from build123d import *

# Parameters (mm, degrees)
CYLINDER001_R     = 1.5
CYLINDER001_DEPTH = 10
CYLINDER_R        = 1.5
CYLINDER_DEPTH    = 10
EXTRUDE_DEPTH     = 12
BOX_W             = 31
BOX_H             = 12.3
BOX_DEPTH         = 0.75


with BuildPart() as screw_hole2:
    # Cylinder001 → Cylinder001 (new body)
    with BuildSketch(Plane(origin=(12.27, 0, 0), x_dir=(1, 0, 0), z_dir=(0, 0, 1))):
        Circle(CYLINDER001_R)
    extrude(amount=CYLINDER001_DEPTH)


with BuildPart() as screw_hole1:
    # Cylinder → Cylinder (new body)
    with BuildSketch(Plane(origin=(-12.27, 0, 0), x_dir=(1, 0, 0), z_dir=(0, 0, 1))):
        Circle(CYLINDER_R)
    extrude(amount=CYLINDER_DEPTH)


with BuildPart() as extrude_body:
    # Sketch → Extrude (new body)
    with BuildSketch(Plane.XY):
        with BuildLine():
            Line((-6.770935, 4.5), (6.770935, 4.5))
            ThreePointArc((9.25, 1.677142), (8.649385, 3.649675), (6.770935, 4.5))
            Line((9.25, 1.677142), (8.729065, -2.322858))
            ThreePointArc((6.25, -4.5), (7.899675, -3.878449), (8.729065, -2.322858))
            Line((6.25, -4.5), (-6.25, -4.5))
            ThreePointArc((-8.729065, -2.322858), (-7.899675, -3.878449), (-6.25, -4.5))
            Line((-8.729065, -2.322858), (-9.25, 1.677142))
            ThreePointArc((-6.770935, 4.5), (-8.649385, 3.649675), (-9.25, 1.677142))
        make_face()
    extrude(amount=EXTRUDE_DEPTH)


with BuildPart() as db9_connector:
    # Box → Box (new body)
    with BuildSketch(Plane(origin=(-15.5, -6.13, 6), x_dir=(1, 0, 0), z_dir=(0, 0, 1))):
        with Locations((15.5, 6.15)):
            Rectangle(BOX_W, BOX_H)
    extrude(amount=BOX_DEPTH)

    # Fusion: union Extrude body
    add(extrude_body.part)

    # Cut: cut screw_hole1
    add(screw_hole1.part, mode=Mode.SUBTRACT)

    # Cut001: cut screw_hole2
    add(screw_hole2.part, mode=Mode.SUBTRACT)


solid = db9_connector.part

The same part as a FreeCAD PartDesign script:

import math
import FreeCAD as App
import Part
import Sketcher

V = App.Vector

doc = App.newDocument("Part")
body = doc.addObject("PartDesign::Body", "Body")

sketch1 = doc.addObject("Sketcher::SketchObject", "Sketch")
body.addObject(sketch1)
sketch1.AttachmentSupport = (doc.XY_Plane, [""])
sketch1.MapMode = "FlatFace"
sketch1.addGeometry(Part.Circle(V(12.27, 0, 0), V(0, 0, 1), 1.5), False)
sketch1.addConstraint([
    Sketcher.Constraint("PointOnObject", 0, 3, -1),
    Sketcher.Constraint("Diameter", 0, 3.0),
    Sketcher.Constraint("DistanceX", -1, 1, 0, 3, 12.27),
])
pad1 = doc.addObject("PartDesign::Pad", "Pad")
body.addObject(pad1)
pad1.Profile = sketch1
pad1.Length = 10
body2 = doc.addObject("PartDesign::Body", "Body001")

sketch2 = doc.addObject("Sketcher::SketchObject", "Sketch001")
body2.addObject(sketch2)
sketch2.AttachmentSupport = (doc.getObject("XY_Plane001"), [""])
sketch2.MapMode = "FlatFace"
sketch2.addGeometry(Part.Circle(V(-12.27, 0, 0), V(0, 0, 1), 1.5), False)
sketch2.addConstraint([
    Sketcher.Constraint("PointOnObject", 0, 3, -1),
    Sketcher.Constraint("Diameter", 0, 3.0),
    Sketcher.Constraint("DistanceX", 0, 3, -1, 1, 12.27),
])
pad2 = doc.addObject("PartDesign::Pad", "Pad001")
body2.addObject(pad2)
pad2.Profile = sketch2
pad2.Length = 10
body3 = doc.addObject("PartDesign::Body", "Body002")

sketch3 = doc.addObject("Sketcher::SketchObject", "Sketch002")
body3.addObject(sketch3)
sketch3.AttachmentSupport = (doc.getObject("XY_Plane002"), [""])
sketch3.MapMode = "FlatFace"
sketch3.addGeometry([
    Part.LineSegment(V(6.770935, 4.5, 0), V(-6.770935, 4.5, 0)),
    Part.ArcOfCircle(Part.Circle(V(-6.770936, 2.000001, 0), V(0, 0, 1), 2.499999), math.radians(89.999981), math.radians(187.4201)),
    Part.LineSegment(V(-9.25, 1.677142, 0), V(-8.729065, -2.322858, 0)),
    Part.ArcOfCircle(Part.Circle(V(-6.249999, -1.999999, 0), V(0, 0, 1), 2.500001), math.radians(-172.57989), math.radians(-90.000023)),
    Part.LineSegment(V(-6.25, -4.5, 0), V(6.25, -4.5, 0)),
    Part.ArcOfCircle(Part.Circle(V(6.249999, -1.999999, 0), V(0, 0, 1), 2.500001), math.radians(-89.999977), math.radians(-7.42011)),
    Part.LineSegment(V(8.729065, -2.322858, 0), V(9.25, 1.677142, 0)),
    Part.ArcOfCircle(Part.Circle(V(6.770936, 2.000001, 0), V(0, 0, 1), 2.499999), math.radians(-7.4201), math.radians(90.000019)),
], False)
sketch3.addConstraint([
    Sketcher.Constraint("Tangent", 0, 2, 1, 1),
    Sketcher.Constraint("Tangent", 1, 2, 2, 1),
    Sketcher.Constraint("Tangent", 2, 2, 3, 1),
    Sketcher.Constraint("Tangent", 3, 2, 4, 1),
    Sketcher.Constraint("Tangent", 4, 2, 5, 1),
    Sketcher.Constraint("Tangent", 5, 2, 6, 1),
    Sketcher.Constraint("Tangent", 6, 2, 7, 1),
    Sketcher.Constraint("Tangent", 7, 2, 0, 1),
    Sketcher.Constraint("Horizontal", 0),
    Sketcher.Constraint("Horizontal", 4),
    Sketcher.Constraint("Equal", 1, 3),
    Sketcher.Constraint("Equal", 3, 5),
    Sketcher.Constraint("Equal", 5, 7),
    Sketcher.Constraint("Symmetric", 2, 2, 5, 2, -2),
    Sketcher.Constraint("Radius", 1, 2.499999),
    Sketcher.Constraint("DistanceX", 4, 1, 4, 2, 12.5),
    Sketcher.Constraint("DistanceY", -1, 1, 1, 3, 2.000001),
    Sketcher.Constraint("DistanceY", 3, 3, -1, 1, 1.999999),
    Sketcher.Constraint("DistanceX", 1, 2, 3, 3, 3.000001),
])
pad3 = doc.addObject("PartDesign::Pad", "Pad002")
body3.addObject(pad3)
pad3.Profile = sketch3
pad3.Length = 12
body4 = doc.addObject("PartDesign::Body", "Body003")

sketch4 = doc.addObject("Sketcher::SketchObject", "Sketch003")
body4.addObject(sketch4)
sketch4.AttachmentSupport = (doc.getObject("XY_Plane003"), [""])
sketch4.MapMode = "FlatFace"
sketch4.AttachmentOffset = App.Placement(V(0, 0, 6), App.Rotation())
sketch4.addGeometry([
    Part.LineSegment(V(-15.5, 6.17, 0), V(-15.5, -6.13, 0)),
    Part.LineSegment(V(-15.5, -6.13, 0), V(15.5, -6.13, 0)),
    Part.LineSegment(V(15.5, -6.13, 0), V(15.5, 6.17, 0)),
    Part.LineSegment(V(15.5, 6.17, 0), V(-15.5, 6.17, 0)),
], False)
sketch4.addConstraint([
    Sketcher.Constraint("Coincident", 0, 2, 1, 1),
    Sketcher.Constraint("Coincident", 1, 2, 2, 1),
    Sketcher.Constraint("Coincident", 2, 2, 3, 1),
    Sketcher.Constraint("Coincident", 3, 2, 0, 1),
    Sketcher.Constraint("Vertical", 0),
    Sketcher.Constraint("Horizontal", 1),
    Sketcher.Constraint("Vertical", 2),
    Sketcher.Constraint("Horizontal", 3),
    Sketcher.Constraint("DistanceX", 1, 1, 1, 2, 31.0),
    Sketcher.Constraint("DistanceY", 0, 2, 0, 1, 12.3),
    Sketcher.Constraint("DistanceX", 0, 2, -1, 1, 15.5),
    Sketcher.Constraint("DistanceY", 0, 2, -1, 1, 6.13),
])
pad4 = doc.addObject("PartDesign::Pad", "Pad003")
body4.addObject(pad4)
pad4.Profile = sketch4
pad4.Length = 0.75
doc.recompute()

boolean = doc.addObject("PartDesign::Boolean", "Boolean")
body4.addObject(boolean)
boolean.Type = "Fuse"
boolean.addObjects([body3])
doc.recompute()

boolean2 = doc.addObject("PartDesign::Boolean", "Boolean001")
body4.addObject(boolean2)
boolean2.Type = "Cut"
boolean2.addObjects([body2])
doc.recompute()

boolean3 = doc.addObject("PartDesign::Boolean", "Boolean002")
body4.addObject(boolean3)
boolean3.Type = "Cut"
boolean3.addObjects([body])

doc.recompute()
